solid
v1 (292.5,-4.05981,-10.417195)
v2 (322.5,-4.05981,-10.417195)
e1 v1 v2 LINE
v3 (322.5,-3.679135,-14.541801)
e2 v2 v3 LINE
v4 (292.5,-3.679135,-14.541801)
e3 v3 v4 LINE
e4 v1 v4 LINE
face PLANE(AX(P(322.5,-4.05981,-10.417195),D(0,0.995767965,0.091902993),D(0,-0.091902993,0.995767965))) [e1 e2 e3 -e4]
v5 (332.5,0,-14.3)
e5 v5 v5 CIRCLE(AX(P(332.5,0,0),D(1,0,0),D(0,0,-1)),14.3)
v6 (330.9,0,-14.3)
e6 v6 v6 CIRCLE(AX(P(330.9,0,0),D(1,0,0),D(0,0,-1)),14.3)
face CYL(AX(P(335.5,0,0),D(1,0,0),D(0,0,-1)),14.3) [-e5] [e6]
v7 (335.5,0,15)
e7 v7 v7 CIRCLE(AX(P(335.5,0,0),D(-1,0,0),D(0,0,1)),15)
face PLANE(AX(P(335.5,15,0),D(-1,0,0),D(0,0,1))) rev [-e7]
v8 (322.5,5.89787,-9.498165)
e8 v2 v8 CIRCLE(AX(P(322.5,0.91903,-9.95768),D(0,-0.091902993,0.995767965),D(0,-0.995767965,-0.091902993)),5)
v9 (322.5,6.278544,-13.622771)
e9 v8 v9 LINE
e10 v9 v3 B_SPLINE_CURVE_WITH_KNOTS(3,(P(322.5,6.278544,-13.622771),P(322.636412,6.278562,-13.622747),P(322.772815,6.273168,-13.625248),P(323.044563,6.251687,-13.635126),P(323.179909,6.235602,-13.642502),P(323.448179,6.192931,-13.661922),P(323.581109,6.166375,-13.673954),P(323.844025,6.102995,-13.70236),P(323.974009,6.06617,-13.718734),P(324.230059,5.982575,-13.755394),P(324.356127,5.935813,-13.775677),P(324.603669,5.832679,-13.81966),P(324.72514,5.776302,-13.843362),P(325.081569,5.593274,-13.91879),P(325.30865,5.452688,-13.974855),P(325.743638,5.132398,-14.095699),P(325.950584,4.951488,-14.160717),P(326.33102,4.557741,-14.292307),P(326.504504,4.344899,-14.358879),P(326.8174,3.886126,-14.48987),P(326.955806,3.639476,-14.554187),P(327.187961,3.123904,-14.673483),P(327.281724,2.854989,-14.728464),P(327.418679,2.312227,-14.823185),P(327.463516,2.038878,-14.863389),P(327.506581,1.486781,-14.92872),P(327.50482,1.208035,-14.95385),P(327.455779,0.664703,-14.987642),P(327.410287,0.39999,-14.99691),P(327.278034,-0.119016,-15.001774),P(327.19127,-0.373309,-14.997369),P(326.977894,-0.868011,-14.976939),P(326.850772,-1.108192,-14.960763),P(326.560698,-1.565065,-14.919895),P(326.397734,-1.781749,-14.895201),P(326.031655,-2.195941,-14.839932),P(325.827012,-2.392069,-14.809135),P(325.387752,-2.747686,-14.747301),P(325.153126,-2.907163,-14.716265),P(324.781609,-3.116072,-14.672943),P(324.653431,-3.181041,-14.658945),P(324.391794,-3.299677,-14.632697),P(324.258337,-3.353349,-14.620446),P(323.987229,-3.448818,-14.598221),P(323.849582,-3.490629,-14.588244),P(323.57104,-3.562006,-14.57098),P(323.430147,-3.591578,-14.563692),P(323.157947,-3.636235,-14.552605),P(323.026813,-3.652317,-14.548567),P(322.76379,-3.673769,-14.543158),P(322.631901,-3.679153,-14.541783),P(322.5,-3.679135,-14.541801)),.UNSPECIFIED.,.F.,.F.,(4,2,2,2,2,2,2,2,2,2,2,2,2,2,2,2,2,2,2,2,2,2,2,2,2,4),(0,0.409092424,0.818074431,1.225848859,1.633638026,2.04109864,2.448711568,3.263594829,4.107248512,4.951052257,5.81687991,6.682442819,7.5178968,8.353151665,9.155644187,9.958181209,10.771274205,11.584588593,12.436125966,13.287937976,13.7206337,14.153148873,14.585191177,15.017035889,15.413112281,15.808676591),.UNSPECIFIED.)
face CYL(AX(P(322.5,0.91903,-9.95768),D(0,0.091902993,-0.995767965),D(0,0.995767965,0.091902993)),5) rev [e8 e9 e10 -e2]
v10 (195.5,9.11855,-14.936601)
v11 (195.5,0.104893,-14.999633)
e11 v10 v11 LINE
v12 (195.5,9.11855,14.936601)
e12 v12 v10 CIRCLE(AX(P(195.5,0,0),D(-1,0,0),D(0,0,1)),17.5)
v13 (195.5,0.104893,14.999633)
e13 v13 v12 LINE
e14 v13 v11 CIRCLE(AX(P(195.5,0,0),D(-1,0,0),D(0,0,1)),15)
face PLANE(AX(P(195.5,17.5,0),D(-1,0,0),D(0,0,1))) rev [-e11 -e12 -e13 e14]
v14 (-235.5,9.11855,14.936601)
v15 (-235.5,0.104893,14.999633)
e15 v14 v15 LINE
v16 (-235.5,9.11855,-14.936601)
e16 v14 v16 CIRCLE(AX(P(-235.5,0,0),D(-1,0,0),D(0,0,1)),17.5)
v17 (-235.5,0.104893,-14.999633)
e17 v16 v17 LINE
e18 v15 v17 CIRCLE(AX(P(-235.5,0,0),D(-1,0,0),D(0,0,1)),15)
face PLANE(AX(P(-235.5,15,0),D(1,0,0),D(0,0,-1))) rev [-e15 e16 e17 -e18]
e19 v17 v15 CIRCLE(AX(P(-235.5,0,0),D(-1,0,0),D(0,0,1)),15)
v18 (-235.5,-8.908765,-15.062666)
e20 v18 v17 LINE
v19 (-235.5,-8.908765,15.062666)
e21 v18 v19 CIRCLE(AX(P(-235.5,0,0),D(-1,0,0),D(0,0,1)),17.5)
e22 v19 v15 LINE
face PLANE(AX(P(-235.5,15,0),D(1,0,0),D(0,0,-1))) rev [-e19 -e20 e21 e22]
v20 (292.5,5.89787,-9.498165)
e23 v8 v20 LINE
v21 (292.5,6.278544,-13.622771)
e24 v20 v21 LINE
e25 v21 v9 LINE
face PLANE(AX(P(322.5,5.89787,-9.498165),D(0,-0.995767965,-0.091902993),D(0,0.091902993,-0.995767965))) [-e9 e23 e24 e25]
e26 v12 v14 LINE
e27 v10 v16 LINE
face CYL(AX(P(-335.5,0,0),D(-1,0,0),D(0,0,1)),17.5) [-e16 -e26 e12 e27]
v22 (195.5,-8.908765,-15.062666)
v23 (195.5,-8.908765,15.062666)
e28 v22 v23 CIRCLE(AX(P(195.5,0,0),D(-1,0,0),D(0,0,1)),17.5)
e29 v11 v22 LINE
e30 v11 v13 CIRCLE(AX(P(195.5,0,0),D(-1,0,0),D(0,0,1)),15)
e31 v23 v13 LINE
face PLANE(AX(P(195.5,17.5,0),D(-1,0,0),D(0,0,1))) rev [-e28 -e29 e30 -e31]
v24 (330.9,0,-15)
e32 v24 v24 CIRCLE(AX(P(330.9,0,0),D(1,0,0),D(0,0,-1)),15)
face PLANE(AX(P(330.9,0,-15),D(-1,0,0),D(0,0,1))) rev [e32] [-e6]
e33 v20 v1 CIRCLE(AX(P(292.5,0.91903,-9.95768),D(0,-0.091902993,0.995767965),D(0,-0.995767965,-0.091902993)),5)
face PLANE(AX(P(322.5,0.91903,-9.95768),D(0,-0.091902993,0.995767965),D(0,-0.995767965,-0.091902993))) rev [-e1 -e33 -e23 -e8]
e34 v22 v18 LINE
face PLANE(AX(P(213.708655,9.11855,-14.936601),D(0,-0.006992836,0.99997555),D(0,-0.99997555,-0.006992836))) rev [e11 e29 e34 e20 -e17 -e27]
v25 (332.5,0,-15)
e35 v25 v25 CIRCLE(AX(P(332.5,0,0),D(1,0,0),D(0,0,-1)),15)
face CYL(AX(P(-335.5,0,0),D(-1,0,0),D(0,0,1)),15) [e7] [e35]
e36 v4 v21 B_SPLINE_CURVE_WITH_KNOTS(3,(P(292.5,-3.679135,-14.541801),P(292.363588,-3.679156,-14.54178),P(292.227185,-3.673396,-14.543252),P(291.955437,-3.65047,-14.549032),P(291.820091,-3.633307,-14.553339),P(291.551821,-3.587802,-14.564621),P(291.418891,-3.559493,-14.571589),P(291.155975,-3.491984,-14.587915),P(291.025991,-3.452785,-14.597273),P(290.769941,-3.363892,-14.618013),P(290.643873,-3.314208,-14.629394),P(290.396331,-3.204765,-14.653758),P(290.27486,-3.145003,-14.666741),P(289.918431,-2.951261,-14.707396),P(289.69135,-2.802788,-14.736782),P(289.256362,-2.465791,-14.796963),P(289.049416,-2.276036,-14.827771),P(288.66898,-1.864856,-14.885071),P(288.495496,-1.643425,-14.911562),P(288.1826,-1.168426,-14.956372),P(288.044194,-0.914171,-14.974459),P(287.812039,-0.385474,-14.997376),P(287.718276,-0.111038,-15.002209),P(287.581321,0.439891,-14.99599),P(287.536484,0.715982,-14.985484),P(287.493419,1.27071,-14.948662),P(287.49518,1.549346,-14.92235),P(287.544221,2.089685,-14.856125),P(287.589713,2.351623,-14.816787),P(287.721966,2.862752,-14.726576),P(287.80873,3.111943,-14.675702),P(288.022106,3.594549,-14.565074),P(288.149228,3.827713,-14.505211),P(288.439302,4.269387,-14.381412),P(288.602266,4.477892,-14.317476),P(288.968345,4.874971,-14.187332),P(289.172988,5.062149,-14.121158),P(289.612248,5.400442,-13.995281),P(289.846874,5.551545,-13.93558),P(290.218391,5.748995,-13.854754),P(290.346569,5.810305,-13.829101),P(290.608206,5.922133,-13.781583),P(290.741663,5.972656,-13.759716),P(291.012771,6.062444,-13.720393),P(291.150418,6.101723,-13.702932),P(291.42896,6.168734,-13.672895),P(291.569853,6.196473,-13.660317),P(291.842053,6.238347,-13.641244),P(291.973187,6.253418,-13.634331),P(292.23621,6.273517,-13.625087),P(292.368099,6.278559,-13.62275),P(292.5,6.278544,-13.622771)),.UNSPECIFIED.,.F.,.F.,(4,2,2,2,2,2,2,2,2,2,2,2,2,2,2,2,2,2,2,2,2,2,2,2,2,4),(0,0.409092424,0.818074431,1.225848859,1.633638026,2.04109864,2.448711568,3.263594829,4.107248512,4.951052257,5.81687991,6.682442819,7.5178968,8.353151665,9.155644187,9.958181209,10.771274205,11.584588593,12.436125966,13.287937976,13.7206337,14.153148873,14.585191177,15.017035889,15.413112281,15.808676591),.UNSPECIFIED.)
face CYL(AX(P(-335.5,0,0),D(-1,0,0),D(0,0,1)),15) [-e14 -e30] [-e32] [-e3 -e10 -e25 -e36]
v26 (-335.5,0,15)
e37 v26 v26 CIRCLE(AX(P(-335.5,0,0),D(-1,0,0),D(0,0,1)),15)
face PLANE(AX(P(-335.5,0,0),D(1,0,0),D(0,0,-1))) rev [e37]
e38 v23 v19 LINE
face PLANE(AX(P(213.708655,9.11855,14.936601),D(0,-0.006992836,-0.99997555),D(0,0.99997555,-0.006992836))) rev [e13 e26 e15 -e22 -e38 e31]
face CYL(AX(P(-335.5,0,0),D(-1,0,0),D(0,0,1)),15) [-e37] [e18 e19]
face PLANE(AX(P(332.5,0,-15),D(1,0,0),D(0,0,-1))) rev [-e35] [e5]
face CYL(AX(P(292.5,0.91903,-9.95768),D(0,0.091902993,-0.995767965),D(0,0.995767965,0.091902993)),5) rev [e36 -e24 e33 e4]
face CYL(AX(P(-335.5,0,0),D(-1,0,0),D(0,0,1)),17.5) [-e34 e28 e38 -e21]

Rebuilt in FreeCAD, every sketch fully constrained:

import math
import FreeCAD as App
import Part
import Sketcher

V = App.Vector
Q = App.Units.Quantity


def add_polygon(sketch, points):
    """Adds a closed chain of lines whose ends are joined by coincident constraints."""
    first, n = sketch.GeometryCount, len(points)
    for a, b in zip(points, points[1:] + points[:1]):
        sketch.addGeometry(Part.LineSegment(App.Vector(*a, 0), App.Vector(*b, 0)), False)
    for i in range(n):
        sketch.addConstraint(Sketcher.Constraint("Coincident", first + i, 2, first + (i + 1) % n, 1))

doc = App.newDocument("Part")
params = doc.addObject("Spreadsheet::Sheet", "Params")
for row, (alias, value) in enumerate([
    ("sketch1_width", "671 mm"),
    ("sketch1_width2", "140 mm"),
    ("sketch1_width3", "431 mm"),
    ("sketch1_height", "15 mm"),
    ("sketch1_height2", "2.5 mm"),
    ("revolution_angle", "360 deg"),
    ("sketch2_radius", "17.5 mm"),
    ("pocket1_length", "431 mm"),
    ("sketch3_width", "1.6 mm"),
    ("sketch3_height", "0.7 mm"),
    ("groove_angle", "360 deg"),
    ("sketch4_radius", "5 mm"),
    ("sketch4_height", "30 mm"),
    ("pocket2_length", "5 mm"),
], start=1):
    params.set(f"A{row}", alias)
    params.set(f"B{row}", "=" + value)
    params.setAlias(f"B{row}", alias)

body = doc.addObject("PartDesign::Body", "Body")

sketch1 = body.newObject("Sketcher::SketchObject", "Sketch")
sketch1.AttachmentSupport = (doc.getObject("XY_Plane"), [""])
sketch1.MapMode = "FlatFace"
add_polygon(sketch1, [(-335.5, 0), (335.5, 0), (335.5, 15), (195.5, 15), (195.5, 17.5), (-235.5, 17.5), (-235.5, 15), (-335.5, 15)])
sketch1.addConstraint(Sketcher.Constraint("Horizontal", 0))
sketch1.addConstraint(Sketcher.Constraint("Vertical", 1))
sketch1.addConstraint(Sketcher.Constraint("Horizontal", 2))
sketch1.addConstraint(Sketcher.Constraint("Vertical", 3))
sketch1.addConstraint(Sketcher.Constraint("Horizontal", 4))
sketch1.addConstraint(Sketcher.Constraint("Vertical", 5))
sketch1.addConstraint(Sketcher.Constraint("Horizontal", 6))
sketch1.addConstraint(Sketcher.Constraint("Vertical", 7))
sketch1.addConstraint(Sketcher.Constraint("Symmetric", 0, 2, 7, 2, -1, 1))
sketch1.addConstraint(Sketcher.Constraint("Horizontal", 2, 2, 5, 2))
sketch1.addConstraint(Sketcher.Constraint("DistanceX", 0, 1, 0, 2, Q("671 mm")))
sketch1.addConstraint(Sketcher.Constraint("DistanceX", 2, 2, 2, 1, Q("140 mm")))
sketch1.addConstraint(Sketcher.Constraint("DistanceX", 4, 2, 4, 1, Q("431 mm")))
sketch1.addConstraint(Sketcher.Constraint("DistanceY", 1, 1, 1, 2, Q("15 mm")))
sketch1.addConstraint(Sketcher.Constraint("DistanceY", 3, 1, 3, 2, Q("2.5 mm")))
sketch1.setExpression("Constraints[18]", "Params.sketch1_width")
sketch1.setExpression("Constraints[19]", "Params.sketch1_width2")
sketch1.setExpression("Constraints[20]", "Params.sketch1_width3")
sketch1.setExpression("Constraints[21]", "Params.sketch1_height")
sketch1.setExpression("Constraints[22]", "Params.sketch1_height2")
revolution = body.newObject("PartDesign::Revolution", "Revolution")
revolution.Profile = sketch1
revolution.ReferenceAxis = (sketch1, ["H_Axis"])
revolution.setExpression("Angle", "Params.revolution_angle")

sketch2 = body.newObject("Sketcher::SketchObject", "Sketch001")
sketch2.AttachmentSupport = (doc.getObject("YZ_Plane"), [""])
sketch2.MapMode = "FlatFace"
sketch2.AttachmentOffset = App.Placement(V(0, 0, -235.5), App.Rotation())
sketch2.addGeometry(Part.LineSegment(V(-9, -15, 0), V(9, -15, 0)), False)
sketch2.addGeometry(Part.ArcOfCircle(Part.Circle(V(0, 0, 0), V(0, 0, 1), 17), math.radians(-121), math.radians(-59)), False)
sketch2.addGeometry(Part.LineSegment(V(9, 15, 0), V(-9, 15, 0)), False)
sketch2.addGeometry(Part.ArcOfCircle(Part.Circle(V(0, 0, 0), V(0, 0, 1), 17), math.radians(59), math.radians(121)), False)
sketch2.addConstraint(Sketcher.Constraint("Coincident", 0, 1, 1, 1))
sketch2.addConstraint(Sketcher.Constraint("Coincident", 1, 2, 0, 2))
sketch2.addConstraint(Sketcher.Constraint("Coincident", 2, 1, 3, 1))
sketch2.addConstraint(Sketcher.Constraint("Coincident", 3, 2, 2, 2))
sketch2.addConstraint(Sketcher.Constraint("Coincident", 1, 3, -1, 1))
sketch2.addConstraint(Sketcher.Constraint("Coincident", 3, 3, -1, 1))
sketch2.addConstraint(Sketcher.Constraint("Equal", 1, 3))
sketch2.addConstraint(Sketcher.Constraint("Vertical", 1, 2, 2, 1))
sketch2.addConstraint(Sketcher.Constraint("Vertical", 0, 1, 3, 2))
sketch2.addConstraint(Sketcher.Constraint("Radius", 1, Q("17.5 mm")))
sketch2.addConstraint(Sketcher.Constraint("DistanceY", 1, 2, -1, 1, Q("14.936601 mm")))
sketch2.addConstraint(Sketcher.Constraint("DistanceY", 0, 1, 3, 2, Q("30.125332 mm")))
sketch2.setExpression("Constraints[9]", "Params.sketch2_radius")
pocket1 = body.newObject("PartDesign::Pocket", "Pocket")
pocket1.Profile = sketch2
pocket1.setExpression("Length", "Params.pocket1_length")
pocket1.Reversed = True

sketch3 = body.newObject("Sketcher::SketchObject", "Sketch002")
sketch3.AttachmentSupport = (doc.getObject("XZ_Plane"), [""])
sketch3.MapMode = "FlatFace"
add_polygon(sketch3, [(330.9, -15), (330.9, -14.3), (332.5, -14.3), (332.5, -15)])
sketch3.addConstraint(Sketcher.Constraint("Vertical", 0))
sketch3.addConstraint(Sketcher.Constraint("Horizontal", 1))
sketch3.addConstraint(Sketcher.Constraint("Vertical", 2))
sketch3.addConstraint(Sketcher.Constraint("Horizontal", 3))
sketch3.addConstraint(Sketcher.Constraint("DistanceX", 1, 1, 1, 2, Q("1.6 mm")))
sketch3.addConstraint(Sketcher.Constraint("DistanceY", 0, 1, 0, 2, Q("0.7 mm")))
sketch3.addConstraint(Sketcher.Constraint("DistanceY", 2, 2, -1, 1, Q("15 mm")))
sketch3.addConstraint(Sketcher.Constraint("DistanceX", -1, 1, 0, 2, Q("330.9 mm")))
sketch3.setExpression("Constraints[8]", "Params.sketch3_width")
sketch3.setExpression("Constraints[9]", "Params.sketch3_height")
groove = body.newObject("PartDesign::Groove", "Groove")
groove.Profile = sketch3
groove.ReferenceAxis = (sketch3, ["H_Axis"])
groove.setExpression("Angle", "Params.groove_angle")

sketch4 = body.newObject("Sketcher::SketchObject", "Sketch003")
sketch4.Placement = App.Placement(V(0, 1.378545, -14.936519), App.Rotation(V(0, -0.995767965, -0.091902993), V(1, 0, 0), V(0, -0.091902993, 0.995767965), "ZXY"))
sketch4.addGeometry(Part.LineSegment(V(5, 293, 0), V(5, 323, 0)), False)
sketch4.addGeometry(Part.ArcOfCircle(Part.Circle(V(0, 323, 0), V(0, 0, 1), 5), math.radians(0), math.radians(180)), False)
sketch4.addGeometry(Part.LineSegment(V(-5, 323, 0), V(-5, 293, 0)), False)
sketch4.addGeometry(Part.ArcOfCircle(Part.Circle(V(0, 293, 0), V(0, 0, 1), 5), math.radians(180), math.radians(360)), False)
sketch4.addConstraint(Sketcher.Constraint("Tangent", 0, 2, 1, 1))
sketch4.addConstraint(Sketcher.Constraint("Tangent", 1, 2, 2, 1))
sketch4.addConstraint(Sketcher.Constraint("Tangent", 2, 2, 3, 1))
sketch4.addConstraint(Sketcher.Constraint("Tangent", 3, 2, 0, 1))
sketch4.addConstraint(Sketcher.Constraint("Vertical", 0))
sketch4.addConstraint(Sketcher.Constraint("Vertical", 2))
sketch4.addConstraint(Sketcher.Constraint("PointOnObject", 1, 3, -2))
sketch4.addConstraint(Sketcher.Constraint("Radius", 1, Q("5 mm")))
sketch4.addConstraint(Sketcher.Constraint("DistanceY", 0, 1, 0, 2, Q("30 mm")))
sketch4.addConstraint(Sketcher.Constraint("DistanceY", -1, 1, 1, 3, Q("322.5 mm")))
sketch4.setExpression("Constraints[7]", "Params.sketch4_radius")
sketch4.setExpression("Constraints[8]", "Params.sketch4_height")
pocket2 = body.newObject("PartDesign::Pocket", "Pocket001")
pocket2.Profile = sketch4
pocket2.setExpression("Length", "Params.pocket2_length")
pocket2.Reversed = True

doc.recompute()
